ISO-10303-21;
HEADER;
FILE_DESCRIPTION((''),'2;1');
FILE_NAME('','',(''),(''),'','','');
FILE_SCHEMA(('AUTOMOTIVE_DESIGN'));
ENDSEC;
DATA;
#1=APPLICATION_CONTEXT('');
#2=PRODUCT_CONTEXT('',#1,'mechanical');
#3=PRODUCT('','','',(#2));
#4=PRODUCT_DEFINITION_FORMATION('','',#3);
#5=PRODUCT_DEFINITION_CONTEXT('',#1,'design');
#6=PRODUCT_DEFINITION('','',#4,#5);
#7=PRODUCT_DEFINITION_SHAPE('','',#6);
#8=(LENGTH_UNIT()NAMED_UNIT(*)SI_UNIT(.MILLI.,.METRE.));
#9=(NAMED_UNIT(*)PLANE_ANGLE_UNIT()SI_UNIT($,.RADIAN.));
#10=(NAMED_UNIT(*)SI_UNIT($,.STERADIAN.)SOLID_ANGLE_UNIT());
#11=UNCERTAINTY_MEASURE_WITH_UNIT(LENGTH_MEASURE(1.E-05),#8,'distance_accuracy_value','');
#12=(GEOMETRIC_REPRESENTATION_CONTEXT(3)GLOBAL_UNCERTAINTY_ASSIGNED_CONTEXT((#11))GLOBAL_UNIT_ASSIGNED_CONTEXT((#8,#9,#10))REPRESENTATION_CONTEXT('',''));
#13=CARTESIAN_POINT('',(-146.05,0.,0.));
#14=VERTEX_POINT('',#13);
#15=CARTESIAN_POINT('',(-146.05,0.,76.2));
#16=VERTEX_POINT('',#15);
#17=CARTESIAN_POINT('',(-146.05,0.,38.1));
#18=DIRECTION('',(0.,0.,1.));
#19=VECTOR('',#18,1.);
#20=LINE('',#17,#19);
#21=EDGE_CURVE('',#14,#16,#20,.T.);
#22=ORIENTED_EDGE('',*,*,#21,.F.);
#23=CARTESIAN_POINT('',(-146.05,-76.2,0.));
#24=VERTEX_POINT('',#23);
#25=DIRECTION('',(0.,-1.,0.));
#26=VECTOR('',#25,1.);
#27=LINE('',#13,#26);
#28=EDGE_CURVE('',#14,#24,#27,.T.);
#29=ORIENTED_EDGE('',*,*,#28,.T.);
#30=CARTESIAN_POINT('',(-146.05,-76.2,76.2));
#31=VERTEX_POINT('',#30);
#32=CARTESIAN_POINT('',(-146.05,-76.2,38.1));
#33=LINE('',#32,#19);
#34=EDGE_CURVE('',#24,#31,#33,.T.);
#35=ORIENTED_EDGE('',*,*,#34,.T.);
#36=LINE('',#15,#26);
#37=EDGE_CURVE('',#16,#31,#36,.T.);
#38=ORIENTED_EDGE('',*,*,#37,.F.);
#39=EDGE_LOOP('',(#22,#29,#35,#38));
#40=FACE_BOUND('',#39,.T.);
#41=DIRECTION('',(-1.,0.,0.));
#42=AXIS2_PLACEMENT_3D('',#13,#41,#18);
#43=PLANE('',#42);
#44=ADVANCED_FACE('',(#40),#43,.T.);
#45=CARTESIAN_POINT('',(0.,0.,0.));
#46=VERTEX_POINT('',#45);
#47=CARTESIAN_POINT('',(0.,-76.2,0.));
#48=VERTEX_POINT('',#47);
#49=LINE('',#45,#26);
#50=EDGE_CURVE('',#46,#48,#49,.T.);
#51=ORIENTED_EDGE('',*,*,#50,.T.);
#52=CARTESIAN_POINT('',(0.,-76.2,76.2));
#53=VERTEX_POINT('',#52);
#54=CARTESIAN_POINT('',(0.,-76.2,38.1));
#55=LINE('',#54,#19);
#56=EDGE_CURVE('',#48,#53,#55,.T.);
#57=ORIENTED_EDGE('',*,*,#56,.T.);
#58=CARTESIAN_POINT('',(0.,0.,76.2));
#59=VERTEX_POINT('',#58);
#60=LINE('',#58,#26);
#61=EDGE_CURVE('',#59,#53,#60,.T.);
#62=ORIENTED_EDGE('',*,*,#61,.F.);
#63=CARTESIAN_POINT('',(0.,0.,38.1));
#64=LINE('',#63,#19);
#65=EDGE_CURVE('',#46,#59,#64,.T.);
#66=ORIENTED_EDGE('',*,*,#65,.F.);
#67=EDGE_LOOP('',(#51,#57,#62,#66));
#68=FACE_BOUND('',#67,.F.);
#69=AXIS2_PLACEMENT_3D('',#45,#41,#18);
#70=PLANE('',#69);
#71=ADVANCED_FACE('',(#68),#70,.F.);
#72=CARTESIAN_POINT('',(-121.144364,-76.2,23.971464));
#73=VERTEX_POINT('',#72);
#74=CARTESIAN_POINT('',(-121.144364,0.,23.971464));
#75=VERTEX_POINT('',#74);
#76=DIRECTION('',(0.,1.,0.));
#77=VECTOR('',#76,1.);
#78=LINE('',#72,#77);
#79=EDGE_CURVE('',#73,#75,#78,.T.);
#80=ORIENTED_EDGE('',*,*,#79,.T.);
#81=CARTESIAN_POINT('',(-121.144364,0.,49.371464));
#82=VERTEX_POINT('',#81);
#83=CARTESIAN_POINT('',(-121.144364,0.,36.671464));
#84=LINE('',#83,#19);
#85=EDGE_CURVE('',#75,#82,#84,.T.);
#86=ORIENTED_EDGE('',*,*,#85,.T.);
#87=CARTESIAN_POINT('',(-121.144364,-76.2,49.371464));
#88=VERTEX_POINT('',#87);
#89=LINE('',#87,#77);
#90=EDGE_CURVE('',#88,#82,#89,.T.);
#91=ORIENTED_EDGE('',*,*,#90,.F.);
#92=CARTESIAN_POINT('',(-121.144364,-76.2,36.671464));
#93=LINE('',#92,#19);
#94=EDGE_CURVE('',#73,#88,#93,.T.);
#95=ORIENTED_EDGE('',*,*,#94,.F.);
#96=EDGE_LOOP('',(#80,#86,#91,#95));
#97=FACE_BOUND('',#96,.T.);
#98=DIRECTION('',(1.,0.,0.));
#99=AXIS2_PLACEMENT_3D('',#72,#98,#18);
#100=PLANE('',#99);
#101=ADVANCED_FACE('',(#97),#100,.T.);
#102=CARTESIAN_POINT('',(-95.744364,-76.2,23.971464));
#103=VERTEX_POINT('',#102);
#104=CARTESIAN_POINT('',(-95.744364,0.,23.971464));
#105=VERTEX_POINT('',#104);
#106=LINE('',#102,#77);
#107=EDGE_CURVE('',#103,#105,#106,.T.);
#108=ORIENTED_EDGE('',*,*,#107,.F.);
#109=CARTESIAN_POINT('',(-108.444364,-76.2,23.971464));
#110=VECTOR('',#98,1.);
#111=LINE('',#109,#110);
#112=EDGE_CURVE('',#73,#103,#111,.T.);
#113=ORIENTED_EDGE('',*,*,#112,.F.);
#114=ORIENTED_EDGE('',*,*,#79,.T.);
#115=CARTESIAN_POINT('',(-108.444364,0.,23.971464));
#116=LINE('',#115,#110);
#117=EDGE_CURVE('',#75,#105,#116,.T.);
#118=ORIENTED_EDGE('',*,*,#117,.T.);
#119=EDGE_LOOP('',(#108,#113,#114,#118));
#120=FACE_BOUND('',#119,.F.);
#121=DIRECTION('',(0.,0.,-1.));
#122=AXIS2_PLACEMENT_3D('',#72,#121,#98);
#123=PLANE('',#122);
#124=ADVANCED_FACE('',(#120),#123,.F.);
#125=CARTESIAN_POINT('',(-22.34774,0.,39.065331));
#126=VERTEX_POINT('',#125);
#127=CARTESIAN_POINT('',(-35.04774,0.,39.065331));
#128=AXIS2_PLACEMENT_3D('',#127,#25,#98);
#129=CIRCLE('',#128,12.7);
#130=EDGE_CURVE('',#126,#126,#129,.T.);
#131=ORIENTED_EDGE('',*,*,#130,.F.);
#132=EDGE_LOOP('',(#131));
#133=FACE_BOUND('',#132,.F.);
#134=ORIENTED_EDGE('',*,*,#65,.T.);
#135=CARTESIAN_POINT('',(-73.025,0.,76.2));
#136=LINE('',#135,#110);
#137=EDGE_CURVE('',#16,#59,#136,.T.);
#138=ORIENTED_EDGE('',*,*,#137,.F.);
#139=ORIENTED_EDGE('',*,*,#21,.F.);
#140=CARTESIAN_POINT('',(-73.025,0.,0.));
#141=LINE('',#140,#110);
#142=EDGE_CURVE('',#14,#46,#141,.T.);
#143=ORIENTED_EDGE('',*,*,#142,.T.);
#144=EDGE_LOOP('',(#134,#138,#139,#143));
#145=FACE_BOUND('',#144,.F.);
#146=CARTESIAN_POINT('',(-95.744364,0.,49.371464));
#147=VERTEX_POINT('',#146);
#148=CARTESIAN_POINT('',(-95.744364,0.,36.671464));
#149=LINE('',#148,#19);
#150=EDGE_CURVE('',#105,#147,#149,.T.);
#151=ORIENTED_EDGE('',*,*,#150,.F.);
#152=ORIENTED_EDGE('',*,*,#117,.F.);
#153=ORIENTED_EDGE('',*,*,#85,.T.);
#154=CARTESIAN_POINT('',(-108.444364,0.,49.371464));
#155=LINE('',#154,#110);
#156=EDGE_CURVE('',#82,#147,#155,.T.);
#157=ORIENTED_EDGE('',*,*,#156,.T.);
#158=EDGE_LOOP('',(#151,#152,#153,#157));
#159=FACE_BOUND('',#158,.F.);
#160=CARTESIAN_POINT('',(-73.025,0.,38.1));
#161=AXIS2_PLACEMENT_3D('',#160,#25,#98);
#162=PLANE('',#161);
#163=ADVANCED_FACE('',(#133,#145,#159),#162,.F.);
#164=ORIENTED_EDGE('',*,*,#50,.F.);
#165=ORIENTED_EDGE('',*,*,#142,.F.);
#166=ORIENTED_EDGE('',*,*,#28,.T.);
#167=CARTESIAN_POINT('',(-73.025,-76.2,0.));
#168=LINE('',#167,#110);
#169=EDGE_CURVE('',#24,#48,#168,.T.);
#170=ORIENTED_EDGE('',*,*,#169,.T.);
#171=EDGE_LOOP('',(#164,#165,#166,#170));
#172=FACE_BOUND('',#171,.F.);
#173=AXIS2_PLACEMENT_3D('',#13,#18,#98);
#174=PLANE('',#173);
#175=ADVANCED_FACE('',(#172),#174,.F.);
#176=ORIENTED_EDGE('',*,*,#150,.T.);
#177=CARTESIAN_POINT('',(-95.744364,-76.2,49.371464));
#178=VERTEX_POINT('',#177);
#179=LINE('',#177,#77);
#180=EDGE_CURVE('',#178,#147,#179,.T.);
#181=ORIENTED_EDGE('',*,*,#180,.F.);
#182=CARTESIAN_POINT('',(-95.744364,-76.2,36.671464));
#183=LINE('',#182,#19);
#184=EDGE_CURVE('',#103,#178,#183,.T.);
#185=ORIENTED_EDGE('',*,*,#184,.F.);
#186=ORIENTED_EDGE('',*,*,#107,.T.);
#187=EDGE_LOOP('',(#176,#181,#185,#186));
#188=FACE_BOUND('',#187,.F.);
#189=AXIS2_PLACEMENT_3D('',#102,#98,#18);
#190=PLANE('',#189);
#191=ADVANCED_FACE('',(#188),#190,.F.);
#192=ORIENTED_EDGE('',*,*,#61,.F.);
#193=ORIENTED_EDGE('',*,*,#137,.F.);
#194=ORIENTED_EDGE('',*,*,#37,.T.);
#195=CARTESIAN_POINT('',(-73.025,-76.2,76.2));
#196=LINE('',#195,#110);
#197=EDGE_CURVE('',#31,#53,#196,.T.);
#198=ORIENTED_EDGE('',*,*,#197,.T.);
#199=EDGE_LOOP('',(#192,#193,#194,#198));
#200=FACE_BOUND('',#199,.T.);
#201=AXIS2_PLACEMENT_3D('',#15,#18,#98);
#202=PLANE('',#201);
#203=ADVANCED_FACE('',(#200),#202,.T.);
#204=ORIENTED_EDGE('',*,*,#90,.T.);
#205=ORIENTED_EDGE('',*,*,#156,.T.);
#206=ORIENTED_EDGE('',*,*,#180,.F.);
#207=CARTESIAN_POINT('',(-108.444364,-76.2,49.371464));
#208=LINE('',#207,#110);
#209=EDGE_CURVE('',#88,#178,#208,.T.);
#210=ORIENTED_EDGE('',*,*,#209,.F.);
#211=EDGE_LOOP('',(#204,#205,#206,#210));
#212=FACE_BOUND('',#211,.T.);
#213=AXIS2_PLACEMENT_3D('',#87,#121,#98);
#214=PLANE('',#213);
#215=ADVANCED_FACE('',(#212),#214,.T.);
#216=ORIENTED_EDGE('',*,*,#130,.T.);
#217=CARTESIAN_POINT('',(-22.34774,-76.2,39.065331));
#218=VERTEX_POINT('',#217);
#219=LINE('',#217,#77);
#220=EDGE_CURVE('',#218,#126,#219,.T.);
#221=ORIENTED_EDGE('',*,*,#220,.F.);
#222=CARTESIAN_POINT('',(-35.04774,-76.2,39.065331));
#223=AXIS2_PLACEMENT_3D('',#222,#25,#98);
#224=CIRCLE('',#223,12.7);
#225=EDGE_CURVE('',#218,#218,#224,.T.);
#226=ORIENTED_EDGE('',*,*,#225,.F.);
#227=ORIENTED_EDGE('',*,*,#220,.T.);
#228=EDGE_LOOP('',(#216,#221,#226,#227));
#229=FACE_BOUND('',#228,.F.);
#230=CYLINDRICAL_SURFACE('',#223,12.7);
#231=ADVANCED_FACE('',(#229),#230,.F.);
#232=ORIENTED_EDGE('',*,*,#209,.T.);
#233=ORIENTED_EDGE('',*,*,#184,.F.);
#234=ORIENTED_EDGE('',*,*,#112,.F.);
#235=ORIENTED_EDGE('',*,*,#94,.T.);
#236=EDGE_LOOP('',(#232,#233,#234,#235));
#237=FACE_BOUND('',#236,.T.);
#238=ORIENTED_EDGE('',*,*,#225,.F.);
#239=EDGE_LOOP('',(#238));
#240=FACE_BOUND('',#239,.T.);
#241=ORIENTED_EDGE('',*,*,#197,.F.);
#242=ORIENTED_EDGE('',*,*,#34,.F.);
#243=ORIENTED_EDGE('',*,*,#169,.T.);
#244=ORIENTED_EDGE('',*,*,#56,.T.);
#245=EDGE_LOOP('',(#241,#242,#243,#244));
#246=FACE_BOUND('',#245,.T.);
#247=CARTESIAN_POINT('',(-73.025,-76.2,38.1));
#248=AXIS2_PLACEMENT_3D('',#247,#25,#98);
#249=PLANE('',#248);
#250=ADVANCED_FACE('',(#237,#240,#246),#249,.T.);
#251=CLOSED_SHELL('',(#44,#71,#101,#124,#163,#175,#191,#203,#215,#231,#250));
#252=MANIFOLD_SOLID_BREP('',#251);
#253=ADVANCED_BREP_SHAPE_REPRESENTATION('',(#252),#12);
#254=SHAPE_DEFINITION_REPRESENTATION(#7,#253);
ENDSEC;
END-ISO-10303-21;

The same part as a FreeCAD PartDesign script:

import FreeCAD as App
import Part
import Sketcher
Q = App.Units.Quantity


def add_polygon(sketch, points):
    """Adds a closed chain of lines whose ends are joined by coincident constraints."""
    first, n = sketch.GeometryCount, len(points)
    for a, b in zip(points, points[1:] + points[:1]):
        sketch.addGeometry(Part.LineSegment(App.Vector(*a, 0), App.Vector(*b, 0)), False)
    for i in range(n):
        sketch.addConstraint(Sketcher.Constraint("Coincident", first + i, 2, first + (i + 1) % n, 1))

doc = App.newDocument("Part")
body = doc.addObject("PartDesign::Body", "Body")

# Sketch on XZ plane
sketch1 = doc.addObject("Sketcher::SketchObject", "Sketch")
body.addObject(sketch1)
sketch1.AttachmentSupport = (doc.XZ_Plane, [""])
sketch1.MapMode = "FlatFace"
add_polygon(sketch1, [(-146, 76), (-146, 0), (0, 0), (0, 76)])  # lines 0-3
sketch1.addConstraint([
    Sketcher.Constraint("Vertical", 0),
    Sketcher.Constraint("Horizontal", 1),
    Sketcher.Constraint("Vertical", 2),
    Sketcher.Constraint("Horizontal", 3),
    Sketcher.Constraint("Coincident", 1, 2, -1, 1),
    Sketcher.Constraint("DistanceY", 0, 2, 0, 1, Q("3 in")),
    Sketcher.Constraint("DistanceX", 1, 1, 1, 2, Q("5.75 in")),
])
pad1 = doc.addObject("PartDesign::Pad", "Pad")
body.addObject(pad1)
pad1.Profile = sketch1
pad1.Length = Q("3 in")

# Sketch on XZ plane
sketch2 = doc.addObject("Sketcher::SketchObject", "Sketch001")
body.addObject(sketch2)
sketch2.AttachmentSupport = (doc.XZ_Plane, [""])
sketch2.MapMode = "FlatFace"
sketch2.AttachmentOffset = App.Placement(App.Vector(0, 0, 3 * 25.4), App.Rotation())
sketch2.addGeometry(Part.Circle(App.Vector(-35, 39, 0), App.Vector(0, 0, 1), 13), False)  # 0
add_polygon(sketch2, [(-121, 49), (-121, 24), (-96, 24), (-96, 49)])  # lines 1-4
sketch2.addConstraint([
    Sketcher.Constraint("Vertical", 1),
    Sketcher.Constraint("Horizontal", 2),
    Sketcher.Constraint("Vertical", 3),
    Sketcher.Constraint("Horizontal", 4),
    Sketcher.Constraint("Equal", 4, 1),
    Sketcher.Constraint("Diameter", 0, Q("1 in")),
    Sketcher.Constraint("DistanceX", 2, 1, 2, 2, Q("1 in")),
    Sketcher.Constraint("DistanceX", 0, 3, -1, 1, 35.04774),
    Sketcher.Constraint("DistanceY", -1, 1, 0, 3, 39.065331),
    Sketcher.Constraint("DistanceX", 1, 2, -1, 1, 121.144364),
    Sketcher.Constraint("DistanceY", -1, 1, 1, 2, 23.971464),
])
pocket1 = doc.addObject("PartDesign::Pocket", "Pocket")
body.addObject(pocket1)
pocket1.Profile = sketch2
pocket1.Length = Q("3 in")

doc.recompute()
